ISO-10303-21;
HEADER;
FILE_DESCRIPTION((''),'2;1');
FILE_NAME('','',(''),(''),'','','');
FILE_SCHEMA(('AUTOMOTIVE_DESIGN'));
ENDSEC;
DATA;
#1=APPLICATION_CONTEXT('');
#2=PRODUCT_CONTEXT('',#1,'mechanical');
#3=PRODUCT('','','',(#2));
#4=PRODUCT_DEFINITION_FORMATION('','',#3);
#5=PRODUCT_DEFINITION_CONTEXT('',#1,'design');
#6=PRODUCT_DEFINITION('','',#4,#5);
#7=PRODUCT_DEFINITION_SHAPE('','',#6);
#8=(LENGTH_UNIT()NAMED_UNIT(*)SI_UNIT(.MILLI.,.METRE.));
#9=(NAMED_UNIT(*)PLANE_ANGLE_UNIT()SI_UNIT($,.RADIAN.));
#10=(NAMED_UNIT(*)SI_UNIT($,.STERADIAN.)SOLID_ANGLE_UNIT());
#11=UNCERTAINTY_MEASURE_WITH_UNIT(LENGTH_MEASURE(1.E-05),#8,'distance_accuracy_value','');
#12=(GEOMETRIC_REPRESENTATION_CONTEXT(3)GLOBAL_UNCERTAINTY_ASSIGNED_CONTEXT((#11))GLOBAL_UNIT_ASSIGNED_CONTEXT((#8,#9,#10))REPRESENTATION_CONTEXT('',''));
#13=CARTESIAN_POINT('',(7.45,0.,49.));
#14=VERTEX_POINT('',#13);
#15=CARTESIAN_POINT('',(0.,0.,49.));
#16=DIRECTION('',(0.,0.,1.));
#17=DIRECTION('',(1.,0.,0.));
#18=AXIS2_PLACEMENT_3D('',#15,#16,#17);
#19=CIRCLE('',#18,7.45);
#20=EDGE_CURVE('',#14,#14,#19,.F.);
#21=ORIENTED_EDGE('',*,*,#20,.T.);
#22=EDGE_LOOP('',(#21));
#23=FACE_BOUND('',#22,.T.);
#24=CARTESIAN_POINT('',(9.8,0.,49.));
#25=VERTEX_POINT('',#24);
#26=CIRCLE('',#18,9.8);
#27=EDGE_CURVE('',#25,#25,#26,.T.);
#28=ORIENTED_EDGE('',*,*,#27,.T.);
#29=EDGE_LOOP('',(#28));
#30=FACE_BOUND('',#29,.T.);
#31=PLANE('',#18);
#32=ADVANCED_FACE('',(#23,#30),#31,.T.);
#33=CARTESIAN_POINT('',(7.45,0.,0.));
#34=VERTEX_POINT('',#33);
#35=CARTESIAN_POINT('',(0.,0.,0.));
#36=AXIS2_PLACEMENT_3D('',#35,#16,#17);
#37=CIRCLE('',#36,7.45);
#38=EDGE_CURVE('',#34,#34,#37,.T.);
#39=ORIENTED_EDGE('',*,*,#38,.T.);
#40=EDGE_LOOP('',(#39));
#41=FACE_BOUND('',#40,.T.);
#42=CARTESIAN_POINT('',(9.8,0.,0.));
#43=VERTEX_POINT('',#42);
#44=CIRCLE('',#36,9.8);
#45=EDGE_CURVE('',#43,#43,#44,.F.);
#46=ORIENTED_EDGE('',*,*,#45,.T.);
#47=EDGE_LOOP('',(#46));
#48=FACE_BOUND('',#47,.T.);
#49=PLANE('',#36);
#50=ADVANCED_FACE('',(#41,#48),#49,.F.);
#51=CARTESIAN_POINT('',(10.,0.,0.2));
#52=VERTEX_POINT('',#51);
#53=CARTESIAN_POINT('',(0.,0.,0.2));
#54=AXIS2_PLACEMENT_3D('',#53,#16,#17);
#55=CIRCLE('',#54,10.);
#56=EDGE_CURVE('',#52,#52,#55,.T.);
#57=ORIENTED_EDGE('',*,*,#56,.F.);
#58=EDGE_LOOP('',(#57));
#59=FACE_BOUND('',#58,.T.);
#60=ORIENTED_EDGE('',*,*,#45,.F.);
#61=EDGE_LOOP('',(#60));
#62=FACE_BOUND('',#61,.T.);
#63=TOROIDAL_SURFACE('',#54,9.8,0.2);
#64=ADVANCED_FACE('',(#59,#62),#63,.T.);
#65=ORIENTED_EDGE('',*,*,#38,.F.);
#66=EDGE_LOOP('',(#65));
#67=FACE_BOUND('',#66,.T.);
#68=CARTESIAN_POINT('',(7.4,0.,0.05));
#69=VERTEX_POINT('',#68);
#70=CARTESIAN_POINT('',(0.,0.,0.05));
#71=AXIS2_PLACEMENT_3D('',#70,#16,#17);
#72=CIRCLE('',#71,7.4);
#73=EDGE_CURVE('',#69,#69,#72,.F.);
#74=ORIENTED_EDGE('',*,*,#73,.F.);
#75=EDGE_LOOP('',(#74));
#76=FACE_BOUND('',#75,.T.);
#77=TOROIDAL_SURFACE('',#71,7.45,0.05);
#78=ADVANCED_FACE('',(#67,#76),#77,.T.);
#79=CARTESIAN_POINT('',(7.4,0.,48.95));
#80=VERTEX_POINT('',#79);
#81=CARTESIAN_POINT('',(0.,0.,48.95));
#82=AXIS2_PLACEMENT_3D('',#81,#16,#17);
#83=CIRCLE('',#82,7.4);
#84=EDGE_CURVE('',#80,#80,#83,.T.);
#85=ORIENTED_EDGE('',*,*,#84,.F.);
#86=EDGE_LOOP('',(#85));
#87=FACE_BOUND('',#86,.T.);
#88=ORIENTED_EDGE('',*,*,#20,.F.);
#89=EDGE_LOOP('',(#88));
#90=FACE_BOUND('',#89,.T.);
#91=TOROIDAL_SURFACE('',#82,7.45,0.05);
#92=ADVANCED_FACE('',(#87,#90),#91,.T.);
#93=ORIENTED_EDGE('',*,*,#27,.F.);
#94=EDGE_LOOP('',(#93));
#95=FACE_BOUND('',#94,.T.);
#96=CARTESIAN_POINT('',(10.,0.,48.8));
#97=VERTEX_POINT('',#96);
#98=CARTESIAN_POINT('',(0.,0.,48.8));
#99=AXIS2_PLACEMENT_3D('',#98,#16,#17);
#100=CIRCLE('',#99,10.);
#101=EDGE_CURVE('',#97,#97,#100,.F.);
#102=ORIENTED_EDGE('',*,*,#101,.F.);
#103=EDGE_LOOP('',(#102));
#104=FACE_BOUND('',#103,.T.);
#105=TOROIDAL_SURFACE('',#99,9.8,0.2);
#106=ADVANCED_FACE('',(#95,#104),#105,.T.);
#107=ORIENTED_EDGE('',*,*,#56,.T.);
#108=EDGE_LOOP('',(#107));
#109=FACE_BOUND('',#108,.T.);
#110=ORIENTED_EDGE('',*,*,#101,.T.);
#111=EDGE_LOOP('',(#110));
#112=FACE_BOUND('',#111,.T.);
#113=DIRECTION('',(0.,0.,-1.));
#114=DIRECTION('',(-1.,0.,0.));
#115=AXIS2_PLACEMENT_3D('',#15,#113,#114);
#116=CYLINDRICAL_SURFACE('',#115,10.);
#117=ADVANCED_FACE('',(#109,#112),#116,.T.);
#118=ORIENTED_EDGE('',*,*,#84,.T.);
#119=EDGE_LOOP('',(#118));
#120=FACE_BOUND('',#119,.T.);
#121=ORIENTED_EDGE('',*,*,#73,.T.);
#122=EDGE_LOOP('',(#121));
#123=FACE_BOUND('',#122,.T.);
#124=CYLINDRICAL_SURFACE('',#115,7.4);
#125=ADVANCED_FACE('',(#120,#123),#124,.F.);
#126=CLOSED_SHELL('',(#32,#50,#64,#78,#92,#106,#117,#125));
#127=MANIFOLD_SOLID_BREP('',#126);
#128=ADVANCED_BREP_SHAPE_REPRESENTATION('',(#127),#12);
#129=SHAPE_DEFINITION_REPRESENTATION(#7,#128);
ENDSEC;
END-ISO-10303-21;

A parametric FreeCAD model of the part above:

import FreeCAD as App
import Part
import Sketcher
from FreeCAD import Vector
Q = App.Units.Quantity


def edges_at(feature, points):
    """Names of the edges that pass closest to the given points."""
    edges = feature.Shape.Edges
    near = lambda p: min(range(len(edges)), key=lambda i: edges[i].distToShape(Part.Vertex(*p))[0])
    return sorted({f"Edge{near(p) + 1}" for p in points})

doc = App.newDocument("Part")
body = doc.addObject("PartDesign::Body", "Body")

sketch1 = body.newObject("Sketcher::SketchObject", "Sketch")
sketch1.AttachmentSupport = (doc.getObject("XY_Plane"), [""])
sketch1.MapMode = "FlatFace"
sketch1.addGeometry([
    Part.Circle(Vector(0, 0, 0), Vector(0, 0, 1), 10),
    Part.Circle(Vector(0, 0, 0), Vector(0, 0, 1), 7),
], False)
sketch1.addConstraint([
    Sketcher.Constraint("Coincident", 0, 3, -1, 1),
    Sketcher.Constraint("Coincident", 1, 3, -1, 1),
    Sketcher.Constraint("Diameter", 0, Q("20 mm")),
    Sketcher.Constraint("Diameter", 1, Q("14.8 mm")),
])
pad1 = body.newObject("PartDesign::Pad", "Pad")
pad1.Profile = sketch1
pad1.Length = 49
doc.recompute()

fillet = body.newObject("PartDesign::Fillet", "Fillet")
fillet.Base = (pad1, edges_at(pad1, [(-10, 0, 0), (-10, 0, 49)]))
fillet.Radius = 0.2
doc.recompute()

fillet2 = body.newObject("PartDesign::Fillet", "Fillet001")
fillet2.Base = (fillet, edges_at(fillet, [(-7.4, 0, 0), (-7.4, 0, 49)]))
fillet2.Radius = 0.05

doc.recompute()
